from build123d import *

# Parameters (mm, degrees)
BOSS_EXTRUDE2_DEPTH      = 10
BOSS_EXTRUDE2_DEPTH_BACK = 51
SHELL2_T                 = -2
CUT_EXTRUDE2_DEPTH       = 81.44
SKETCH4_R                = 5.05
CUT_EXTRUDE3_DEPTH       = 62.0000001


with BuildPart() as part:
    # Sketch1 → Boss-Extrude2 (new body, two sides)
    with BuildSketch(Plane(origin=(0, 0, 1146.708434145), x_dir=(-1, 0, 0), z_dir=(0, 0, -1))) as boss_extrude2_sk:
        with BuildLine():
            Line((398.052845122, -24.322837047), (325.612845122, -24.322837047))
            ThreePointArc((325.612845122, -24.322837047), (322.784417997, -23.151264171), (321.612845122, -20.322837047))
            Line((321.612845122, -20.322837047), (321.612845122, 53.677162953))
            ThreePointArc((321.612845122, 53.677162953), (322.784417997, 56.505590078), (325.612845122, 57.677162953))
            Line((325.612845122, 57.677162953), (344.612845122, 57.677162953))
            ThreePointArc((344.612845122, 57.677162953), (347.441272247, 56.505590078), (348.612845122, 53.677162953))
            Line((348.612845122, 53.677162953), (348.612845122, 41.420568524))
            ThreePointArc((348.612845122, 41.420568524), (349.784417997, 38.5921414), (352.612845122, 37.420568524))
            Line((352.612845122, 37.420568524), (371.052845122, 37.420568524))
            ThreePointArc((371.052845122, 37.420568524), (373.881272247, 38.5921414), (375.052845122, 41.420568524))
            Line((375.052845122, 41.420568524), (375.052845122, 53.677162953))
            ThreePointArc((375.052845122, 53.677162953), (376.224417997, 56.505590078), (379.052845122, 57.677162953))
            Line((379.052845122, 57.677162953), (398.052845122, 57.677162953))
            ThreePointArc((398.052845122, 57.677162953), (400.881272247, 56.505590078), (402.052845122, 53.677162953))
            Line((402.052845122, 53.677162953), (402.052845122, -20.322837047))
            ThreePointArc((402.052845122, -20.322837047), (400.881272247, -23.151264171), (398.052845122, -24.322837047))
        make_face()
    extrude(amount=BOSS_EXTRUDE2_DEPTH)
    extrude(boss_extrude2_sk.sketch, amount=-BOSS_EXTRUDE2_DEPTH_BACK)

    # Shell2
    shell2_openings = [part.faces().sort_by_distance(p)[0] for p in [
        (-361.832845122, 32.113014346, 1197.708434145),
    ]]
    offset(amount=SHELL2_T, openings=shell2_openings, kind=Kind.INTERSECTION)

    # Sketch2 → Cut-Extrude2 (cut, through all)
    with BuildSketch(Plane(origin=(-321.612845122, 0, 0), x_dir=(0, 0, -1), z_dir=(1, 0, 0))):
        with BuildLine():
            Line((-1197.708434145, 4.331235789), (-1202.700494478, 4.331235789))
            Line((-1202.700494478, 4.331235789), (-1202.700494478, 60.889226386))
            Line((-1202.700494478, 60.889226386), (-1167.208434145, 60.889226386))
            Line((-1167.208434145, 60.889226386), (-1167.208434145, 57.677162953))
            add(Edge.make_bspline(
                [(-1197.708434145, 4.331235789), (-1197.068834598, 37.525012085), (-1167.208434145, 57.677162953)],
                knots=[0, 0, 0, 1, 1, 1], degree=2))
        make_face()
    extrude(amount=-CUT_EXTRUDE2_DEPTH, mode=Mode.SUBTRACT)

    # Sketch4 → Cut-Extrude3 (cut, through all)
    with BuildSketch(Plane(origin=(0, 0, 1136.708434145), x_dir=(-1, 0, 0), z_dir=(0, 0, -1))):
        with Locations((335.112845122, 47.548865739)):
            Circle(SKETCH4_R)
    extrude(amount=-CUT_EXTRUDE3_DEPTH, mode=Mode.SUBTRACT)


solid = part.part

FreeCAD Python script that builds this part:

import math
import FreeCAD as App
import Part
import Sketcher


def faces_at(feature, points):
    """Names of the faces that lie closest to the given points."""
    faces = feature.Shape.Faces
    near = lambda p: min(range(len(faces)), key=lambda i: faces[i].distToShape(Part.Vertex(*p))[0])
    return sorted({f"Face{near(p) + 1}" for p in points})

doc = App.newDocument("Part")
params = doc.addObject("Spreadsheet::Sheet", "Params")
for row, (alias, value) in enumerate([
    ("sketch1_radius", "4 mm"),
    ("sketch1_width", "19 mm"),
    ("sketch1_height", "74 mm"),
    ("sketch1_width2", "72.44 mm"),
    ("pad1_length", "10 mm"),
    ("pad1_length2", "51 mm"),
    ("thickness_wall", "2 mm"),
    ("sketch3_diameter", "10.1 mm"),
], start=1):
    params.set(f"A{row}", alias)
    params.set(f"B{row}", "=" + value)
    params.setAlias(f"B{row}", alias)

body = doc.addObject("PartDesign::Body", "Body")

# Sketch on XY plane
sketch1 = doc.addObject("Sketcher::SketchObject", "Sketch")
body.addObject(sketch1)
sketch1.AttachmentSupport = (doc.XY_Plane, [""])
sketch1.MapMode = "FlatFace"
sketch1.AttachmentOffset = App.Placement(App.Vector(0, 0, 1146.708434), App.Rotation())
sketch1.addGeometry([
    Part.LineSegment(App.Vector(-325.6, -24.3, 0), App.Vector(-398.1, -24.3, 0)),  # 0
    Part.ArcOfCircle(Part.Circle(App.Vector(-398.1, -20.3, 0), App.Vector(0, 0, 1), 4), math.radians(-180), math.radians(-90)),  # 1
    Part.LineSegment(App.Vector(-402.1, -20.3, 0), App.Vector(-402.1, 53.7, 0)),  # 2
    Part.ArcOfCircle(Part.Circle(App.Vector(-398.1, 53.7, 0), App.Vector(0, 0, 1), 4), math.radians(90), math.radians(180)),  # 3
    Part.LineSegment(App.Vector(-398.1, 57.7, 0), App.Vector(-379.1, 57.7, 0)),  # 4
    Part.ArcOfCircle(Part.Circle(App.Vector(-379.1, 53.7, 0), App.Vector(0, 0, 1), 4), math.radians(0), math.radians(90)),  # 5
    Part.LineSegment(App.Vector(-375.1, 53.7, 0), App.Vector(-375.1, 41.4, 0)),  # 6
    Part.ArcOfCircle(Part.Circle(App.Vector(-371.1, 41.4, 0), App.Vector(0, 0, 1), 4), math.radians(-180), math.radians(-90)),  # 7
    Part.LineSegment(App.Vector(-371.1, 37.4, 0), App.Vector(-352.6, 37.4, 0)),  # 8
    Part.ArcOfCircle(Part.Circle(App.Vector(-352.6, 41.4, 0), App.Vector(0, 0, 1), 4), math.radians(-90), math.radians(0)),  # 9
    Part.LineSegment(App.Vector(-348.6, 41.4, 0), App.Vector(-348.6, 53.7, 0)),  # 10
    Part.ArcOfCircle(Part.Circle(App.Vector(-344.6, 53.7, 0), App.Vector(0, 0, 1), 4), math.radians(90), math.radians(180)),  # 11
    Part.LineSegment(App.Vector(-344.6, 57.7, 0), App.Vector(-325.6, 57.7, 0)),  # 12
    Part.ArcOfCircle(Part.Circle(App.Vector(-325.6, 53.7, 0), App.Vector(0, 0, 1), 4), math.radians(0), math.radians(90)),  # 13
    Part.LineSegment(App.Vector(-321.6, 53.7, 0), App.Vector(-321.6, -20.3, 0)),  # 14
    Part.ArcOfCircle(Part.Circle(App.Vector(-325.6, -20.3, 0), App.Vector(0, 0, 1), 4), math.radians(-90), math.radians(0)),  # 15
], False)
sketch1.addConstraint([
    Sketcher.Constraint("Tangent", 0, 2, 1, 2),
    Sketcher.Constraint("Tangent", 1, 1, 2, 1),
    Sketcher.Constraint("Tangent", 2, 2, 3, 2),
    Sketcher.Constraint("Tangent", 3, 1, 4, 1),
    Sketcher.Constraint("Tangent", 4, 2, 5, 2),
    Sketcher.Constraint("Tangent", 5, 1, 6, 1),
    Sketcher.Constraint("Tangent", 6, 2, 7, 1),
    Sketcher.Constraint("Tangent", 7, 2, 8, 1),
    Sketcher.Constraint("Tangent", 8, 2, 9, 1),
    Sketcher.Constraint("Tangent", 9, 2, 10, 1),
    Sketcher.Constraint("Tangent", 10, 2, 11, 2),
    Sketcher.Constraint("Tangent", 11, 1, 12, 1),
    Sketcher.Constraint("Tangent", 12, 2, 13, 2),
    Sketcher.Constraint("Tangent", 13, 1, 14, 1),
    Sketcher.Constraint("Tangent", 14, 2, 15, 2),
    Sketcher.Constraint("Tangent", 15, 1, 0, 1),
    Sketcher.Constraint("Horizontal", 0),
    Sketcher.Constraint("Vertical", 2),
    Sketcher.Constraint("Horizontal", 4),
    Sketcher.Constraint("Vertical", 6),
    Sketcher.Constraint("Horizontal", 8),
    Sketcher.Constraint("Vertical", 10),
    Sketcher.Constraint("Horizontal", 12),
    Sketcher.Constraint("Vertical", 14),
    Sketcher.Constraint("Equal", 1, 3),
    Sketcher.Constraint("Equal", 3, 5),
    Sketcher.Constraint("Equal", 5, 7),
    Sketcher.Constraint("Equal", 7, 9),
    Sketcher.Constraint("Equal", 9, 11),
    Sketcher.Constraint("Equal", 11, 13),
    Sketcher.Constraint("Equal", 13, 15),
    Sketcher.Constraint("Horizontal", 5, 3, 11, 3),
    Sketcher.Constraint("Equal", 4, 12),
    Sketcher.Constraint("Radius", 1, 4.0),
    Sketcher.Constraint("DistanceX", 4, 1, 4, 2, 19.0),
    Sketcher.Constraint("DistanceY", 2, 1, 2, 2, 74.0),
    Sketcher.Constraint("DistanceX", 0, 2, 0, 1, 72.44),
    Sketcher.Constraint("DistanceY", 6, 2, 6, 1, 12.256594),
    Sketcher.Constraint("DistanceY", -1, 1, 7, 3, 41.420569),
    Sketcher.Constraint("DistanceX", 1, 3, -1, 1, 398.052845),
])
sketch1.setExpression("Constraints[33]", "Params.sketch1_radius")
sketch1.setExpression("Constraints[34]", "Params.sketch1_width")
sketch1.setExpression("Constraints[35]", "Params.sketch1_height")
sketch1.setExpression("Constraints[36]", "Params.sketch1_width2")
pad1 = doc.addObject("PartDesign::Pad", "Pad")
body.addObject(pad1)
pad1.Profile = sketch1
pad1.Type = "TwoLengths"
pad1.setExpression("Length", "Params.pad1_length")
pad1.setExpression("Length2", "Params.pad1_length2")
pad1.Reversed = True
doc.recompute()

thickness = doc.addObject("PartDesign::Thickness", "Thickness")
body.addObject(thickness)
thickness.Base = (pad1, faces_at(pad1, [(-361.833, 16.677, 1197.708)]))
thickness.setExpression("Value", "Params.thickness_wall")
thickness.Reversed = True
thickness.Join = "Intersection"

# Sketch on YZ plane
sketch2 = doc.addObject("Sketcher::SketchObject", "Sketch001")
body.addObject(sketch2)
sketch2.AttachmentSupport = (doc.YZ_Plane, [""])
sketch2.MapMode = "FlatFace"
sketch2.AttachmentOffset = App.Placement(App.Vector(0, 0, -321.612845), App.Rotation())
sketch2.addGeometry([
    Part.LineSegment(App.Vector(4.331236, 1202.700494, 0), App.Vector(4.331236, 1197.708434, 0)),  # 0
    Part.BSplineCurve([App.Vector(4.331236, 1197.708434, 0), App.Vector(37.525012, 1197.068835, 0), App.Vector(57.677163, 1167.208434, 0)], [3, 3], [0, 1], False, 2, [1, 1, 1], False),  # 1
    Part.LineSegment(App.Vector(57.677163, 1167.208434, 0), App.Vector(60.889226, 1167.208434, 0)),  # 2
    Part.LineSegment(App.Vector(60.889226, 1167.208434, 0), App.Vector(60.889226, 1202.700494, 0)),  # 3
    Part.LineSegment(App.Vector(60.889226, 1202.700494, 0), App.Vector(4.331236, 1202.700494, 0)),  # 4
], False)
sketch2.addConstraint([
    Sketcher.Constraint("Block", 1),
    Sketcher.Constraint("Coincident", 0, 2, 1, 1),
    Sketcher.Constraint("Coincident", 1, 2, 2, 1),
    Sketcher.Constraint("Coincident", 2, 2, 3, 1),
    Sketcher.Constraint("Coincident", 3, 2, 4, 1),
    Sketcher.Constraint("Coincident", 4, 2, 0, 1),
    Sketcher.Constraint("Vertical", 0),
    Sketcher.Constraint("Horizontal", 2),
    Sketcher.Constraint("Vertical", 3),
    Sketcher.Constraint("Horizontal", 4),
    Sketcher.Constraint("DistanceX", 4, 2, 4, 1, 56.557991),
    Sketcher.Constraint("DistanceY", 0, 2, 0, 1, 4.99206),
])
pocket1 = doc.addObject("PartDesign::Pocket", "Pocket")
body.addObject(pocket1)
pocket1.Profile = sketch2
pocket1.Type = "ThroughAll"

# Sketch on XY plane
sketch3 = doc.addObject("Sketcher::SketchObject", "Sketch002")
body.addObject(sketch3)
sketch3.AttachmentSupport = (doc.XY_Plane, [""])
sketch3.MapMode = "FlatFace"
sketch3.AttachmentOffset = App.Placement(App.Vector(0, 0, 1136.708434), App.Rotation())
sketch3.addGeometry(Part.Circle(App.Vector(-335, 48, 0), App.Vector(0, 0, 1), 5), False)
sketch3.addConstraint([
    Sketcher.Constraint("Diameter", 0, 10.1),
    Sketcher.Constraint("DistanceX", 0, 3, -1, 1, 335.112845),
    Sketcher.Constraint("DistanceY", -1, 1, 0, 3, 47.548866),
])
sketch3.setExpression("Constraints[0]", "Params.sketch3_diameter")
pocket2 = doc.addObject("PartDesign::Pocket", "Pocket001")
body.addObject(pocket2)
pocket2.Profile = sketch3
pocket2.Type = "ThroughAll"
pocket2.Reversed = True

doc.recompute()
